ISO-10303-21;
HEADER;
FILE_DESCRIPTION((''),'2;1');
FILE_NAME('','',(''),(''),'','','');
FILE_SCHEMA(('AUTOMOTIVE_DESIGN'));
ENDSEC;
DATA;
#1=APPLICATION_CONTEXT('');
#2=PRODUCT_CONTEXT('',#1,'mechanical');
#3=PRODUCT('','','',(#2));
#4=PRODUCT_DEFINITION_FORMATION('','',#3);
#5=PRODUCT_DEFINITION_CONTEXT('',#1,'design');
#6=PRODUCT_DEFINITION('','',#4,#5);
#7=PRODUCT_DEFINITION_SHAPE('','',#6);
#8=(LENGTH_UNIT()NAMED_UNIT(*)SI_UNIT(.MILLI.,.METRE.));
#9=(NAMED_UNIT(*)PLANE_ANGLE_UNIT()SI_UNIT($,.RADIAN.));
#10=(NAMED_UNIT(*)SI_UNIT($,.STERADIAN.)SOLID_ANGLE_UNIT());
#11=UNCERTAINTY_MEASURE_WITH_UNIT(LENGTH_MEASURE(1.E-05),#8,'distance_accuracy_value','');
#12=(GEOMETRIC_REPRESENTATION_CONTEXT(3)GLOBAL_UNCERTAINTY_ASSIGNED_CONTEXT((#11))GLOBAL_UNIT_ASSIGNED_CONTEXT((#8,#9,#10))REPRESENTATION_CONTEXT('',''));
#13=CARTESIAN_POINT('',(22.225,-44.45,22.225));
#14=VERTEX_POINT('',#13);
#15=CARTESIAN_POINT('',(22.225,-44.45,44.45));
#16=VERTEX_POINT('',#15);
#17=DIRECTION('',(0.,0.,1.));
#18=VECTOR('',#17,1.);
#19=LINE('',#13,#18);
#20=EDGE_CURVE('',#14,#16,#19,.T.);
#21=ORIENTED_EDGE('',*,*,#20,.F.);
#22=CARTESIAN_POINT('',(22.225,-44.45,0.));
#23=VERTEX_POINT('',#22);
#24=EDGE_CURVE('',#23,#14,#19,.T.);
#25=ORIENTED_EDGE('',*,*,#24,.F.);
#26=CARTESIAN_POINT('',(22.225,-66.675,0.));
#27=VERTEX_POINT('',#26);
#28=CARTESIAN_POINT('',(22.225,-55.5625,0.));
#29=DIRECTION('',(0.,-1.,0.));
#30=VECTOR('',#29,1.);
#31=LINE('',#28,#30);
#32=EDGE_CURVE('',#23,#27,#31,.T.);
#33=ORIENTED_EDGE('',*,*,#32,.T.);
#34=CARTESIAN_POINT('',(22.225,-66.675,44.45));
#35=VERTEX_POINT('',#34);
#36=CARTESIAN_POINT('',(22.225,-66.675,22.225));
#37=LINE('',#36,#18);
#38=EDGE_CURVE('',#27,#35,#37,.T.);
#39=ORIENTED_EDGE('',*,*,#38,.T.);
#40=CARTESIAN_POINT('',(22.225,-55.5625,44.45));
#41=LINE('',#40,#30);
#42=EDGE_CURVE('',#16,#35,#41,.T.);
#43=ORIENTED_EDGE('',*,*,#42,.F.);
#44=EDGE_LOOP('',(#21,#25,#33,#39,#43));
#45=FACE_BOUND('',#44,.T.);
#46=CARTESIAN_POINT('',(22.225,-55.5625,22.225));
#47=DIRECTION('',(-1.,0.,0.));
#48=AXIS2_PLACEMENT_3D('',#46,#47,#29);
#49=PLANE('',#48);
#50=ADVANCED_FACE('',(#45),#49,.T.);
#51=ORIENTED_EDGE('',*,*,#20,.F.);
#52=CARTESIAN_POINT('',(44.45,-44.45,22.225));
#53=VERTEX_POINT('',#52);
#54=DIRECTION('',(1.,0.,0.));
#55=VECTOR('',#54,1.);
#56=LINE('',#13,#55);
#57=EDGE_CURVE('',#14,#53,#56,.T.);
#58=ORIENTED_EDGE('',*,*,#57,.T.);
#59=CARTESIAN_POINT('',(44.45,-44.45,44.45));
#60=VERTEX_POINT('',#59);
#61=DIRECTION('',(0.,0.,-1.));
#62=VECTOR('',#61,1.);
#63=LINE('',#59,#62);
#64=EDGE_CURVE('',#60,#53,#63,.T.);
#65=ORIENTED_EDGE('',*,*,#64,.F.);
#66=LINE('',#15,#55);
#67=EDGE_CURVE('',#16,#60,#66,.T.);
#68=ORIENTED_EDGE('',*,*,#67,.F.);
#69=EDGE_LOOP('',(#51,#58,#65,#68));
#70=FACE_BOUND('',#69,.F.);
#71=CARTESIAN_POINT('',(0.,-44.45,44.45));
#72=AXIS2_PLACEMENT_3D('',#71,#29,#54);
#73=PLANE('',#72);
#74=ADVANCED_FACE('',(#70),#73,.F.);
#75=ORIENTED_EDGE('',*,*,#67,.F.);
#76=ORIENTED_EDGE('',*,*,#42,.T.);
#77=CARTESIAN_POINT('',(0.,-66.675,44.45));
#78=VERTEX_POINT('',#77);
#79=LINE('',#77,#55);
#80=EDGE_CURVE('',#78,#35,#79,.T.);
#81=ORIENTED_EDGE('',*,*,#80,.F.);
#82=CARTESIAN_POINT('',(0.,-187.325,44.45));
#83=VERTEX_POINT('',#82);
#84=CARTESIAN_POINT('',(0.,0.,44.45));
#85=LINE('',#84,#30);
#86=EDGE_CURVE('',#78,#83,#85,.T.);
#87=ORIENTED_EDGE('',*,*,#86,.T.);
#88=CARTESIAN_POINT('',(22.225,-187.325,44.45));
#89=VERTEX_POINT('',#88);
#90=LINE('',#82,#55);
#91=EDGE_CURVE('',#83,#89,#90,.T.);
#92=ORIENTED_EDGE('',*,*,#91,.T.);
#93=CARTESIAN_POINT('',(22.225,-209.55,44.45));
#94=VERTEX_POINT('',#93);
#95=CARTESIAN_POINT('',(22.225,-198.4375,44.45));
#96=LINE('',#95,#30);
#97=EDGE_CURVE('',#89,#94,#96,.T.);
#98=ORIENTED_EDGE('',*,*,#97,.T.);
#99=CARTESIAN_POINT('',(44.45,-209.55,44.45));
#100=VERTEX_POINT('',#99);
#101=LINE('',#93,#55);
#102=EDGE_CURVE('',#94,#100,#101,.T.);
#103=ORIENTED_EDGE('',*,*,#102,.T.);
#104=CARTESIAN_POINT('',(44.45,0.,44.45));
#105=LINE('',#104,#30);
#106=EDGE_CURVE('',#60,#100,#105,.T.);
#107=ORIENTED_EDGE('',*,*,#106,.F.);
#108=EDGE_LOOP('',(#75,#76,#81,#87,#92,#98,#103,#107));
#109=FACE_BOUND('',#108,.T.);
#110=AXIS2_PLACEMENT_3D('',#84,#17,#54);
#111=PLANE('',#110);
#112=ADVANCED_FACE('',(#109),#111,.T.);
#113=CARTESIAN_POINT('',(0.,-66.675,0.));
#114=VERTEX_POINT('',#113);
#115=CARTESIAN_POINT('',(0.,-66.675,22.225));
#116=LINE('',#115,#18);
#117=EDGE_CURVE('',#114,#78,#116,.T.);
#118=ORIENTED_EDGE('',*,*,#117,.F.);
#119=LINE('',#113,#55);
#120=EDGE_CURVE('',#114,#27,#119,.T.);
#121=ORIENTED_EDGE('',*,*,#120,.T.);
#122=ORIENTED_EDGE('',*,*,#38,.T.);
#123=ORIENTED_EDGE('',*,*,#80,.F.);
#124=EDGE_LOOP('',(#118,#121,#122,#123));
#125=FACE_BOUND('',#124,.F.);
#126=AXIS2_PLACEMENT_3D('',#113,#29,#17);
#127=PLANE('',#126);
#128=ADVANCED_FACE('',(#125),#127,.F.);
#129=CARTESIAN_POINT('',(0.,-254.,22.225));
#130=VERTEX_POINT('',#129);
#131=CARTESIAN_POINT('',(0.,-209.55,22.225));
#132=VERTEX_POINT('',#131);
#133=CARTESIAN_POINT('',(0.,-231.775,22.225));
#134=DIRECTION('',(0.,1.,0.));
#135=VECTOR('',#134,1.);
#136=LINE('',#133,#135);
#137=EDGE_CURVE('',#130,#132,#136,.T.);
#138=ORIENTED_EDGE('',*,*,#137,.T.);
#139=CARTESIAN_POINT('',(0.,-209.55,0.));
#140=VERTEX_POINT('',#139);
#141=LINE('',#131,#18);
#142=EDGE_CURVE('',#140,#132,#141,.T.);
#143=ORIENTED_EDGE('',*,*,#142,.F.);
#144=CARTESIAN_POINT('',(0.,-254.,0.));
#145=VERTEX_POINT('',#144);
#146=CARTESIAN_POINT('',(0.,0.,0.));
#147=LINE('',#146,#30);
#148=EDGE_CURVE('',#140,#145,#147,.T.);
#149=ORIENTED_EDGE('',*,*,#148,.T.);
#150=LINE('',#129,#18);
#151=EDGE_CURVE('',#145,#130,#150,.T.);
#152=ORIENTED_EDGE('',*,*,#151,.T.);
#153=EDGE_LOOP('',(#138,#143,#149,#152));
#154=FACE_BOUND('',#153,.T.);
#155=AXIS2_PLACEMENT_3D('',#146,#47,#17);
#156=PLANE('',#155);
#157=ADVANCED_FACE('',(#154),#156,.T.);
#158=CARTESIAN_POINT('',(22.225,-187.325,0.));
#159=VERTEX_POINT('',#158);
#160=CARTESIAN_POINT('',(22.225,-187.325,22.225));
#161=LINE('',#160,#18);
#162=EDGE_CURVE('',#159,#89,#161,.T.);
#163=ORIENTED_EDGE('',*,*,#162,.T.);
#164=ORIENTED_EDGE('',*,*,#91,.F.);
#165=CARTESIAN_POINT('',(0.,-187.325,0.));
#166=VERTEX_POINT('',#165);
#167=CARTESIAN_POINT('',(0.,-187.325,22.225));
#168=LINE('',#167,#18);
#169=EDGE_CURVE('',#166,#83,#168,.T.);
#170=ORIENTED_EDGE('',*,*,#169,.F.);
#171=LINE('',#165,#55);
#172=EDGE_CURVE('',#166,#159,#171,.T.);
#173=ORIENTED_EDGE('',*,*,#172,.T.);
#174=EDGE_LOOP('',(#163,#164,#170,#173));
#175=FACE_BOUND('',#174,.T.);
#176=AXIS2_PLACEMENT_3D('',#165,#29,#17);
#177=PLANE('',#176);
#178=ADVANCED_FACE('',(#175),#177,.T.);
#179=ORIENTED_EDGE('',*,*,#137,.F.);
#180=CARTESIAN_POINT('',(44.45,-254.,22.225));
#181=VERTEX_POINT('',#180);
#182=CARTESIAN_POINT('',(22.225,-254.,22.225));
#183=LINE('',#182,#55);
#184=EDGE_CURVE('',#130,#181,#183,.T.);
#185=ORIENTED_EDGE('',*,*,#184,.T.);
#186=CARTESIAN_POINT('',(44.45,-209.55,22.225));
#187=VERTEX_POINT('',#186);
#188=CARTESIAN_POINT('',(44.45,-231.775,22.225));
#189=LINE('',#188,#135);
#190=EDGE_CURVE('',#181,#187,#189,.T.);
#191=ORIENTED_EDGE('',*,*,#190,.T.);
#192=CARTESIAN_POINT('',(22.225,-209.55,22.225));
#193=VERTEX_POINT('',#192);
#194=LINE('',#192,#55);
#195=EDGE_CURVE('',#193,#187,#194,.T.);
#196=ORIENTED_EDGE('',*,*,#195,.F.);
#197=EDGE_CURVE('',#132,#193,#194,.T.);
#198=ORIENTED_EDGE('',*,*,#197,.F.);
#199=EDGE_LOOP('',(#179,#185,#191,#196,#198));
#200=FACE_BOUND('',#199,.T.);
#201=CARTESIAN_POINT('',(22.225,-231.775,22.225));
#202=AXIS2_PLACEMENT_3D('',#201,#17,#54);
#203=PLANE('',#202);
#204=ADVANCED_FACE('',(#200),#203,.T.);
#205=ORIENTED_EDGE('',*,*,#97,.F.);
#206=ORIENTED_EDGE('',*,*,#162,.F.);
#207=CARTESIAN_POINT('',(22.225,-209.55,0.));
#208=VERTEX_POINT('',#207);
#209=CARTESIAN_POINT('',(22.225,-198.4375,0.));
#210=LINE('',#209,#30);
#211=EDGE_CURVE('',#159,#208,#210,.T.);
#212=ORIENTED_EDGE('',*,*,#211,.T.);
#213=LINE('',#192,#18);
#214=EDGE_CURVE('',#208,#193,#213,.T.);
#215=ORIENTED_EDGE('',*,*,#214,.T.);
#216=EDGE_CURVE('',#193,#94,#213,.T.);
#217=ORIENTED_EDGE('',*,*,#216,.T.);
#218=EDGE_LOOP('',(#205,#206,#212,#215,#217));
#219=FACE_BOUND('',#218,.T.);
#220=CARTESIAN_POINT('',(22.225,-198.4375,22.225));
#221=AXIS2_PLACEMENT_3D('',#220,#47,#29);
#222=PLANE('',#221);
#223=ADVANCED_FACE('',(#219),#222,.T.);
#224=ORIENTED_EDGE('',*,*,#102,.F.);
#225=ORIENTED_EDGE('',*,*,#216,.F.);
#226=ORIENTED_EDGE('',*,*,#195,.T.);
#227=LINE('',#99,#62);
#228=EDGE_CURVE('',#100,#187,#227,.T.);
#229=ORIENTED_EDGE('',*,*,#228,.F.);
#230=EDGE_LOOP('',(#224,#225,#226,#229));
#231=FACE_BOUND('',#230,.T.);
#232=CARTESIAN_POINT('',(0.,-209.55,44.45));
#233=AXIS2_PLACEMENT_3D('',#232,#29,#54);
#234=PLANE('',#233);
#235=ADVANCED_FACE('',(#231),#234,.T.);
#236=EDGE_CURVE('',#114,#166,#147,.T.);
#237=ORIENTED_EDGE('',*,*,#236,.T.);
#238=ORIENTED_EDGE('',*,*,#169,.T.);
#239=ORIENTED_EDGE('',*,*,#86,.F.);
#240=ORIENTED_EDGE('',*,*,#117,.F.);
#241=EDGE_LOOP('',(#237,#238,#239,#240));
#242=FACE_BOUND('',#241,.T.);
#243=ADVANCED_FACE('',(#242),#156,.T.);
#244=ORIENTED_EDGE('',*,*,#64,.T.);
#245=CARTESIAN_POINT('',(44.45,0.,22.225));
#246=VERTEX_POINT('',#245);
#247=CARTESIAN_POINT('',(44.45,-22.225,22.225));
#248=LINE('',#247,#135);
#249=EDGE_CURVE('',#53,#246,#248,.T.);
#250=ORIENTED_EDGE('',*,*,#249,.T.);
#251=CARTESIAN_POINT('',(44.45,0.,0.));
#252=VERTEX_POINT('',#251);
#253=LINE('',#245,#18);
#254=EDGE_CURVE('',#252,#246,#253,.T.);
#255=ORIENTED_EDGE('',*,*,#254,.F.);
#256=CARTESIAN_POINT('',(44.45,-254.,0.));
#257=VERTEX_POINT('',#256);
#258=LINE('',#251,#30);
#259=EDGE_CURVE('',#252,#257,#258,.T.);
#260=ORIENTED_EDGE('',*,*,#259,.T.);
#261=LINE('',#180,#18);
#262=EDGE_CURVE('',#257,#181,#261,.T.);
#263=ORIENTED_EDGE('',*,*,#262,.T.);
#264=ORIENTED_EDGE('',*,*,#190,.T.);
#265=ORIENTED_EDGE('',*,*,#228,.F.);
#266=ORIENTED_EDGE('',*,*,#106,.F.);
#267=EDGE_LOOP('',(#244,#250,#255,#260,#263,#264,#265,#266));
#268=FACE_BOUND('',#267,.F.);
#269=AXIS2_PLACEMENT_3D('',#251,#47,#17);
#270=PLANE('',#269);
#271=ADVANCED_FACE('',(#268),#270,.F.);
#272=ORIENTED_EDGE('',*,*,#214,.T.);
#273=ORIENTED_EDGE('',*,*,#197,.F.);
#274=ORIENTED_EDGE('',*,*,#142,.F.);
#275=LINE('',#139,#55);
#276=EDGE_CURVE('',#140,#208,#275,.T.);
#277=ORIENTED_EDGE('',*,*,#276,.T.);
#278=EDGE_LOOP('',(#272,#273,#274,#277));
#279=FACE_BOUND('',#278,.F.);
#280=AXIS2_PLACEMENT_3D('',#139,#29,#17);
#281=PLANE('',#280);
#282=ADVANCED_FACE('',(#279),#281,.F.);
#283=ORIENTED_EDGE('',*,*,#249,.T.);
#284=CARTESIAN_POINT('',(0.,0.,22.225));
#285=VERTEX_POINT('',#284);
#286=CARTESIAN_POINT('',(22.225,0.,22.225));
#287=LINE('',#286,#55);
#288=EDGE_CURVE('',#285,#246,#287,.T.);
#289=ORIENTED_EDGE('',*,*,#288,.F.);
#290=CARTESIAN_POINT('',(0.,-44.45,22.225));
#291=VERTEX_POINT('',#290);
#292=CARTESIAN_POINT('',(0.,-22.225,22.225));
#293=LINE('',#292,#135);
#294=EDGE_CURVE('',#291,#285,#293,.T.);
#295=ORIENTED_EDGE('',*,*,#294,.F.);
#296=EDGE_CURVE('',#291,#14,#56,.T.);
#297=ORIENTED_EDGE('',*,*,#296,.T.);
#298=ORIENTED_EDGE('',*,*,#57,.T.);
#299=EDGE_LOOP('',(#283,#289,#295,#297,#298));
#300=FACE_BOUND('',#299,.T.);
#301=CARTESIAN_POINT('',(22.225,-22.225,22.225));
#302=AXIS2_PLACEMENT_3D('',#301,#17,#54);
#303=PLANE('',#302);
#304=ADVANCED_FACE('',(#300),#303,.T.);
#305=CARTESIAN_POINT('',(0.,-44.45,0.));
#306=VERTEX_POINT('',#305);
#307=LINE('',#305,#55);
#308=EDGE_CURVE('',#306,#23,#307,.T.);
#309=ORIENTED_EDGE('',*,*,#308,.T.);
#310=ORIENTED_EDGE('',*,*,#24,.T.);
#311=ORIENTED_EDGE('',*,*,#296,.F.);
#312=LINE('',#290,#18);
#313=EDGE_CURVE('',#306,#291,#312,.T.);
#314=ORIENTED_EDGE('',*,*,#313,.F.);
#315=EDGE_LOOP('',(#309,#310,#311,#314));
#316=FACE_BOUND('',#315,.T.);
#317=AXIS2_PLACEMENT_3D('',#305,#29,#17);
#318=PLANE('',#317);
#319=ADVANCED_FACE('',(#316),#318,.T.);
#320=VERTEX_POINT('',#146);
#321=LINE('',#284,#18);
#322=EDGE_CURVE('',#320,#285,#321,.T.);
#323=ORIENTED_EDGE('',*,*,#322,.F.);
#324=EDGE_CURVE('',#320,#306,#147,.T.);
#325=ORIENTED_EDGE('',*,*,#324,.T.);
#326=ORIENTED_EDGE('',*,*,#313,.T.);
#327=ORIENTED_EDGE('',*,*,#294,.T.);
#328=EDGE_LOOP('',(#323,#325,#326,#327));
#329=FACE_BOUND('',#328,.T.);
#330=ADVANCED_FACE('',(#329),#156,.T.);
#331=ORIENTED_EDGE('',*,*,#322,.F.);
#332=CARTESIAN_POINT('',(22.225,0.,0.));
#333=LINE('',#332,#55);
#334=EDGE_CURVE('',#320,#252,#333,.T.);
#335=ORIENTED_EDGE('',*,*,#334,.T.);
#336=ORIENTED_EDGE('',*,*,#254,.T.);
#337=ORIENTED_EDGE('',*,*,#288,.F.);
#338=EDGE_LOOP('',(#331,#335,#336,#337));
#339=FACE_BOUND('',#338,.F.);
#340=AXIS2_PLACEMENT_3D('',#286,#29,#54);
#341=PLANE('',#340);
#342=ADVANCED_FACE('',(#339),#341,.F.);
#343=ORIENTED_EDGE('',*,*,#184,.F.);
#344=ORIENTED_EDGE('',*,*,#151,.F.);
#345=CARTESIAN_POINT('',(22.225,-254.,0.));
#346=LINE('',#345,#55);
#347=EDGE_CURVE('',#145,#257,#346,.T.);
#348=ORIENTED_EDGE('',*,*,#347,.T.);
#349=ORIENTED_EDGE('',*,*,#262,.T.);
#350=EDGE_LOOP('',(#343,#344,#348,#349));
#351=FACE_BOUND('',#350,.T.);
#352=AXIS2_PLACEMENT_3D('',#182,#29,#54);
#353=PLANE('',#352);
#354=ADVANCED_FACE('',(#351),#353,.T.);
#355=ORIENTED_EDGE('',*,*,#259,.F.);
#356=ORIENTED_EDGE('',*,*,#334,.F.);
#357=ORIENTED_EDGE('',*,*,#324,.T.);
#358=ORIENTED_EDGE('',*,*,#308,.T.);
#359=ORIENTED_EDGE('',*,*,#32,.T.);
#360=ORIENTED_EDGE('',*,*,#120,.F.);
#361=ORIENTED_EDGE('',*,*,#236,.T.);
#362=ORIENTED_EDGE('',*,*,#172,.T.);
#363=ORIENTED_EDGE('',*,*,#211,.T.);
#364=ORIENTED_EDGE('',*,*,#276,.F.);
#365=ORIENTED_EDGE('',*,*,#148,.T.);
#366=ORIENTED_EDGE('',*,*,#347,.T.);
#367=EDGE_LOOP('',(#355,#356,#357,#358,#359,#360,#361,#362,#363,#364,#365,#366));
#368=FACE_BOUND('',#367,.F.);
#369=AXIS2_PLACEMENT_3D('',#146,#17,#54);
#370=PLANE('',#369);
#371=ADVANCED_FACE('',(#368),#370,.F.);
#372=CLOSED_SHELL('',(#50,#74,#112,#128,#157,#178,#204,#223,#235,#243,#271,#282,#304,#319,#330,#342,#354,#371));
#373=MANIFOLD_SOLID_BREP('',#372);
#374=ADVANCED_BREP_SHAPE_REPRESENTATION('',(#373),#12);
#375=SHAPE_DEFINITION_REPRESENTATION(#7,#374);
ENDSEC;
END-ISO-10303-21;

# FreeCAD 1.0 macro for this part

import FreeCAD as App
import Part
import Sketcher
Q = App.Units.Quantity

doc = App.newDocument("Part")
params = doc.addObject("Spreadsheet::Sheet", "Params")
for row, (alias, value) in enumerate([
    ("sketch1_width", "1.75 in"),
    ("pad1_length", "10 in"),
    ("sketch2_width", "1.75 in"),
    ("pocket1_length", "0.875 in"),
    ("sketch3_height", "1.75 in"),
    ("sketch3_width", "0.875 in"),
    ("pocket2_length", "0.875 in"),
], start=1):
    params.set(f"A{row}", alias)
    params.set(f"B{row}", "=" + value)
    params.setAlias(f"B{row}", alias)

body = doc.addObject("PartDesign::Body", "Body")

# Sketch on XZ plane
sketch1 = doc.addObject("Sketcher::SketchObject", "Sketch")
body.addObject(sketch1)
sketch1.AttachmentSupport = (doc.XZ_Plane, [""])
sketch1.MapMode = "FlatFace"
sketch1.addGeometry([
    Part.LineSegment(App.Vector(0, 44, 0), App.Vector(0, 0, 0)),
    Part.LineSegment(App.Vector(0, 0, 0), App.Vector(44, 0, 0)),
    Part.LineSegment(App.Vector(44, 0, 0), App.Vector(44, 44, 0)),
    Part.LineSegment(App.Vector(44, 44, 0), App.Vector(0, 44, 0)),
], False)
sketch1.addConstraint([
    Sketcher.Constraint("Coincident", 0, 2, 1, 1),
    Sketcher.Constraint("Coincident", 1, 2, 2, 1),
    Sketcher.Constraint("Coincident", 2, 2, 3, 1),
    Sketcher.Constraint("Coincident", 3, 2, 0, 1),
    Sketcher.Constraint("Vertical", 0),
    Sketcher.Constraint("Horizontal", 1),
    Sketcher.Constraint("Vertical", 2),
    Sketcher.Constraint("Horizontal", 3),
    Sketcher.Constraint("Coincident", 0, 2, -1, 1),
    Sketcher.Constraint("Equal", 3, 0),
    Sketcher.Constraint("DistanceX", 1, 1, 1, 2, Q("1.75 in")),
])
sketch1.setExpression("Constraints[10]", "Params.sketch1_width")
pad1 = doc.addObject("PartDesign::Pad", "Pad")
body.addObject(pad1)
pad1.Profile = sketch1
pad1.setExpression("Length", "Params.pad1_length")

# Sketch on XY plane
sketch2 = doc.addObject("Sketcher::SketchObject", "Sketch001")
body.addObject(sketch2)
sketch2.AttachmentSupport = (doc.XY_Plane, [""])
sketch2.MapMode = "FlatFace"
sketch2.AttachmentOffset = App.Placement(App.Vector(0, 0, 1.75 * 25.4), App.Rotation())
sketch2.addGeometry([
    Part.LineSegment(App.Vector(0, -210, 0), App.Vector(0, -254, 0)),  # 0
    Part.LineSegment(App.Vector(0, -254, 0), App.Vector(44, -254, 0)),  # 1
    Part.LineSegment(App.Vector(44, -254, 0), App.Vector(44, -210, 0)),  # 2
    Part.LineSegment(App.Vector(44, -210, 0), App.Vector(0, -210, 0)),  # 3
    Part.LineSegment(App.Vector(0, 0, 0), App.Vector(0, -44, 0)),  # 4
    Part.LineSegment(App.Vector(0, -44, 0), App.Vector(44, -44, 0)),  # 5
    Part.LineSegment(App.Vector(44, -44, 0), App.Vector(44, 0, 0)),  # 6
    Part.LineSegment(App.Vector(44, 0, 0), App.Vector(0, 0, 0)),  # 7
], False)
sketch2.addConstraint([
    Sketcher.Constraint("Coincident", 0, 2, 1, 1),
    Sketcher.Constraint("Coincident", 1, 2, 2, 1),
    Sketcher.Constraint("Coincident", 2, 2, 3, 1),
    Sketcher.Constraint("Coincident", 3, 2, 0, 1),
    Sketcher.Constraint("Coincident", 4, 2, 5, 1),
    Sketcher.Constraint("Coincident", 5, 2, 6, 1),
    Sketcher.Constraint("Coincident", 6, 2, 7, 1),
    Sketcher.Constraint("Coincident", 7, 2, 4, 1),
    Sketcher.Constraint("Vertical", 0),
    Sketcher.Constraint("Horizontal", 1),
    Sketcher.Constraint("Vertical", 2),
    Sketcher.Constraint("Horizontal", 3),
    Sketcher.Constraint("Vertical", 4),
    Sketcher.Constraint("Horizontal", 5),
    Sketcher.Constraint("Vertical", 6),
    Sketcher.Constraint("Horizontal", 7),
    Sketcher.Constraint("Coincident", 7, 2, -1, 1),
    Sketcher.Constraint("PointOnObject", 0, 2, -2),
    Sketcher.Constraint("Vertical", 2, 2, 5, 2),
    Sketcher.Constraint("Equal", 7, 0),
    Sketcher.Constraint("Equal", 2, 4),
    Sketcher.Constraint("DistanceY", 0, 2, -1, 1, Q("10 in")),
    Sketcher.Constraint("DistanceX", 1, 1, 1, 2, Q("1.75 in")),
])
sketch2.setExpression("Constraints[22]", "Params.sketch2_width")
pocket1 = doc.addObject("PartDesign::Pocket", "Pocket")
body.addObject(pocket1)
pocket1.Profile = sketch2
pocket1.setExpression("Length", "Params.pocket1_length")

# Sketch on YZ plane
sketch3 = doc.addObject("Sketcher::SketchObject", "Sketch002")
body.addObject(sketch3)
sketch3.AttachmentSupport = (doc.YZ_Plane, [""])
sketch3.MapMode = "FlatFace"
sketch3.addGeometry([
    Part.LineSegment(App.Vector(-44, 44, 0), App.Vector(-44, 0, 0)),  # 0
    Part.LineSegment(App.Vector(-44, 0, 0), App.Vector(-67, 0, 0)),  # 1
    Part.LineSegment(App.Vector(-67, 0, 0), App.Vector(-67, 44, 0)),  # 2
    Part.LineSegment(App.Vector(-67, 44, 0), App.Vector(-44, 44, 0)),  # 3
    Part.LineSegment(App.Vector(-187, 44, 0), App.Vector(-187, 0, 0)),  # 4
    Part.LineSegment(App.Vector(-187, 0, 0), App.Vector(-210, 0, 0)),  # 5
    Part.LineSegment(App.Vector(-210, 0, 0), App.Vector(-210, 44, 0)),  # 6
    Part.LineSegment(App.Vector(-210, 44, 0), App.Vector(-187, 44, 0)),  # 7
], False)
sketch3.addConstraint([
    Sketcher.Constraint("Coincident", 0, 2, 1, 1),
    Sketcher.Constraint("Coincident", 1, 2, 2, 1),
    Sketcher.Constraint("Coincident", 2, 2, 3, 1),
    Sketcher.Constraint("Coincident", 3, 2, 0, 1),
    Sketcher.Constraint("Coincident", 4, 2, 5, 1),
    Sketcher.Constraint("Coincident", 5, 2, 6, 1),
    Sketcher.Constraint("Coincident", 6, 2, 7, 1),
    Sketcher.Constraint("Coincident", 7, 2, 4, 1),
    Sketcher.Constraint("Vertical", 0),
    Sketcher.Constraint("Horizontal", 1),
    Sketcher.Constraint("Vertical", 2),
    Sketcher.Constraint("Horizontal", 3),
    Sketcher.Constraint("Vertical", 4),
    Sketcher.Constraint("Horizontal", 5),
    Sketcher.Constraint("Vertical", 6),
    Sketcher.Constraint("Horizontal", 7),
    Sketcher.Constraint("PointOnObject", 0, 2, -1),
    Sketcher.Constraint("PointOnObject", 4, 2, -1),
    Sketcher.Constraint("Horizontal", 3, 2, 6, 2),
    Sketcher.Constraint("Equal", 3, 5),
    Sketcher.Constraint("DistanceY", 0, 2, 0, 1, Q("1.75 in")),
    Sketcher.Constraint("DistanceX", 5, 2, 0, 2, Q("6.5 in")),
    Sketcher.Constraint("DistanceX", 1, 2, 1, 1, Q("0.875 in")),
    Sketcher.Constraint("DistanceX", 0, 2, -1, 1, Q("1.75 in")),
])
sketch3.setExpression("Constraints[20]", "Params.sketch3_height")
sketch3.setExpression("Constraints[22]", "Params.sketch3_width")
pocket2 = doc.addObject("PartDesign::Pocket", "Pocket001")
body.addObject(pocket2)
pocket2.Profile = sketch3
pocket2.setExpression("Length", "Params.pocket2_length")
pocket2.Reversed = True

doc.recompute()
